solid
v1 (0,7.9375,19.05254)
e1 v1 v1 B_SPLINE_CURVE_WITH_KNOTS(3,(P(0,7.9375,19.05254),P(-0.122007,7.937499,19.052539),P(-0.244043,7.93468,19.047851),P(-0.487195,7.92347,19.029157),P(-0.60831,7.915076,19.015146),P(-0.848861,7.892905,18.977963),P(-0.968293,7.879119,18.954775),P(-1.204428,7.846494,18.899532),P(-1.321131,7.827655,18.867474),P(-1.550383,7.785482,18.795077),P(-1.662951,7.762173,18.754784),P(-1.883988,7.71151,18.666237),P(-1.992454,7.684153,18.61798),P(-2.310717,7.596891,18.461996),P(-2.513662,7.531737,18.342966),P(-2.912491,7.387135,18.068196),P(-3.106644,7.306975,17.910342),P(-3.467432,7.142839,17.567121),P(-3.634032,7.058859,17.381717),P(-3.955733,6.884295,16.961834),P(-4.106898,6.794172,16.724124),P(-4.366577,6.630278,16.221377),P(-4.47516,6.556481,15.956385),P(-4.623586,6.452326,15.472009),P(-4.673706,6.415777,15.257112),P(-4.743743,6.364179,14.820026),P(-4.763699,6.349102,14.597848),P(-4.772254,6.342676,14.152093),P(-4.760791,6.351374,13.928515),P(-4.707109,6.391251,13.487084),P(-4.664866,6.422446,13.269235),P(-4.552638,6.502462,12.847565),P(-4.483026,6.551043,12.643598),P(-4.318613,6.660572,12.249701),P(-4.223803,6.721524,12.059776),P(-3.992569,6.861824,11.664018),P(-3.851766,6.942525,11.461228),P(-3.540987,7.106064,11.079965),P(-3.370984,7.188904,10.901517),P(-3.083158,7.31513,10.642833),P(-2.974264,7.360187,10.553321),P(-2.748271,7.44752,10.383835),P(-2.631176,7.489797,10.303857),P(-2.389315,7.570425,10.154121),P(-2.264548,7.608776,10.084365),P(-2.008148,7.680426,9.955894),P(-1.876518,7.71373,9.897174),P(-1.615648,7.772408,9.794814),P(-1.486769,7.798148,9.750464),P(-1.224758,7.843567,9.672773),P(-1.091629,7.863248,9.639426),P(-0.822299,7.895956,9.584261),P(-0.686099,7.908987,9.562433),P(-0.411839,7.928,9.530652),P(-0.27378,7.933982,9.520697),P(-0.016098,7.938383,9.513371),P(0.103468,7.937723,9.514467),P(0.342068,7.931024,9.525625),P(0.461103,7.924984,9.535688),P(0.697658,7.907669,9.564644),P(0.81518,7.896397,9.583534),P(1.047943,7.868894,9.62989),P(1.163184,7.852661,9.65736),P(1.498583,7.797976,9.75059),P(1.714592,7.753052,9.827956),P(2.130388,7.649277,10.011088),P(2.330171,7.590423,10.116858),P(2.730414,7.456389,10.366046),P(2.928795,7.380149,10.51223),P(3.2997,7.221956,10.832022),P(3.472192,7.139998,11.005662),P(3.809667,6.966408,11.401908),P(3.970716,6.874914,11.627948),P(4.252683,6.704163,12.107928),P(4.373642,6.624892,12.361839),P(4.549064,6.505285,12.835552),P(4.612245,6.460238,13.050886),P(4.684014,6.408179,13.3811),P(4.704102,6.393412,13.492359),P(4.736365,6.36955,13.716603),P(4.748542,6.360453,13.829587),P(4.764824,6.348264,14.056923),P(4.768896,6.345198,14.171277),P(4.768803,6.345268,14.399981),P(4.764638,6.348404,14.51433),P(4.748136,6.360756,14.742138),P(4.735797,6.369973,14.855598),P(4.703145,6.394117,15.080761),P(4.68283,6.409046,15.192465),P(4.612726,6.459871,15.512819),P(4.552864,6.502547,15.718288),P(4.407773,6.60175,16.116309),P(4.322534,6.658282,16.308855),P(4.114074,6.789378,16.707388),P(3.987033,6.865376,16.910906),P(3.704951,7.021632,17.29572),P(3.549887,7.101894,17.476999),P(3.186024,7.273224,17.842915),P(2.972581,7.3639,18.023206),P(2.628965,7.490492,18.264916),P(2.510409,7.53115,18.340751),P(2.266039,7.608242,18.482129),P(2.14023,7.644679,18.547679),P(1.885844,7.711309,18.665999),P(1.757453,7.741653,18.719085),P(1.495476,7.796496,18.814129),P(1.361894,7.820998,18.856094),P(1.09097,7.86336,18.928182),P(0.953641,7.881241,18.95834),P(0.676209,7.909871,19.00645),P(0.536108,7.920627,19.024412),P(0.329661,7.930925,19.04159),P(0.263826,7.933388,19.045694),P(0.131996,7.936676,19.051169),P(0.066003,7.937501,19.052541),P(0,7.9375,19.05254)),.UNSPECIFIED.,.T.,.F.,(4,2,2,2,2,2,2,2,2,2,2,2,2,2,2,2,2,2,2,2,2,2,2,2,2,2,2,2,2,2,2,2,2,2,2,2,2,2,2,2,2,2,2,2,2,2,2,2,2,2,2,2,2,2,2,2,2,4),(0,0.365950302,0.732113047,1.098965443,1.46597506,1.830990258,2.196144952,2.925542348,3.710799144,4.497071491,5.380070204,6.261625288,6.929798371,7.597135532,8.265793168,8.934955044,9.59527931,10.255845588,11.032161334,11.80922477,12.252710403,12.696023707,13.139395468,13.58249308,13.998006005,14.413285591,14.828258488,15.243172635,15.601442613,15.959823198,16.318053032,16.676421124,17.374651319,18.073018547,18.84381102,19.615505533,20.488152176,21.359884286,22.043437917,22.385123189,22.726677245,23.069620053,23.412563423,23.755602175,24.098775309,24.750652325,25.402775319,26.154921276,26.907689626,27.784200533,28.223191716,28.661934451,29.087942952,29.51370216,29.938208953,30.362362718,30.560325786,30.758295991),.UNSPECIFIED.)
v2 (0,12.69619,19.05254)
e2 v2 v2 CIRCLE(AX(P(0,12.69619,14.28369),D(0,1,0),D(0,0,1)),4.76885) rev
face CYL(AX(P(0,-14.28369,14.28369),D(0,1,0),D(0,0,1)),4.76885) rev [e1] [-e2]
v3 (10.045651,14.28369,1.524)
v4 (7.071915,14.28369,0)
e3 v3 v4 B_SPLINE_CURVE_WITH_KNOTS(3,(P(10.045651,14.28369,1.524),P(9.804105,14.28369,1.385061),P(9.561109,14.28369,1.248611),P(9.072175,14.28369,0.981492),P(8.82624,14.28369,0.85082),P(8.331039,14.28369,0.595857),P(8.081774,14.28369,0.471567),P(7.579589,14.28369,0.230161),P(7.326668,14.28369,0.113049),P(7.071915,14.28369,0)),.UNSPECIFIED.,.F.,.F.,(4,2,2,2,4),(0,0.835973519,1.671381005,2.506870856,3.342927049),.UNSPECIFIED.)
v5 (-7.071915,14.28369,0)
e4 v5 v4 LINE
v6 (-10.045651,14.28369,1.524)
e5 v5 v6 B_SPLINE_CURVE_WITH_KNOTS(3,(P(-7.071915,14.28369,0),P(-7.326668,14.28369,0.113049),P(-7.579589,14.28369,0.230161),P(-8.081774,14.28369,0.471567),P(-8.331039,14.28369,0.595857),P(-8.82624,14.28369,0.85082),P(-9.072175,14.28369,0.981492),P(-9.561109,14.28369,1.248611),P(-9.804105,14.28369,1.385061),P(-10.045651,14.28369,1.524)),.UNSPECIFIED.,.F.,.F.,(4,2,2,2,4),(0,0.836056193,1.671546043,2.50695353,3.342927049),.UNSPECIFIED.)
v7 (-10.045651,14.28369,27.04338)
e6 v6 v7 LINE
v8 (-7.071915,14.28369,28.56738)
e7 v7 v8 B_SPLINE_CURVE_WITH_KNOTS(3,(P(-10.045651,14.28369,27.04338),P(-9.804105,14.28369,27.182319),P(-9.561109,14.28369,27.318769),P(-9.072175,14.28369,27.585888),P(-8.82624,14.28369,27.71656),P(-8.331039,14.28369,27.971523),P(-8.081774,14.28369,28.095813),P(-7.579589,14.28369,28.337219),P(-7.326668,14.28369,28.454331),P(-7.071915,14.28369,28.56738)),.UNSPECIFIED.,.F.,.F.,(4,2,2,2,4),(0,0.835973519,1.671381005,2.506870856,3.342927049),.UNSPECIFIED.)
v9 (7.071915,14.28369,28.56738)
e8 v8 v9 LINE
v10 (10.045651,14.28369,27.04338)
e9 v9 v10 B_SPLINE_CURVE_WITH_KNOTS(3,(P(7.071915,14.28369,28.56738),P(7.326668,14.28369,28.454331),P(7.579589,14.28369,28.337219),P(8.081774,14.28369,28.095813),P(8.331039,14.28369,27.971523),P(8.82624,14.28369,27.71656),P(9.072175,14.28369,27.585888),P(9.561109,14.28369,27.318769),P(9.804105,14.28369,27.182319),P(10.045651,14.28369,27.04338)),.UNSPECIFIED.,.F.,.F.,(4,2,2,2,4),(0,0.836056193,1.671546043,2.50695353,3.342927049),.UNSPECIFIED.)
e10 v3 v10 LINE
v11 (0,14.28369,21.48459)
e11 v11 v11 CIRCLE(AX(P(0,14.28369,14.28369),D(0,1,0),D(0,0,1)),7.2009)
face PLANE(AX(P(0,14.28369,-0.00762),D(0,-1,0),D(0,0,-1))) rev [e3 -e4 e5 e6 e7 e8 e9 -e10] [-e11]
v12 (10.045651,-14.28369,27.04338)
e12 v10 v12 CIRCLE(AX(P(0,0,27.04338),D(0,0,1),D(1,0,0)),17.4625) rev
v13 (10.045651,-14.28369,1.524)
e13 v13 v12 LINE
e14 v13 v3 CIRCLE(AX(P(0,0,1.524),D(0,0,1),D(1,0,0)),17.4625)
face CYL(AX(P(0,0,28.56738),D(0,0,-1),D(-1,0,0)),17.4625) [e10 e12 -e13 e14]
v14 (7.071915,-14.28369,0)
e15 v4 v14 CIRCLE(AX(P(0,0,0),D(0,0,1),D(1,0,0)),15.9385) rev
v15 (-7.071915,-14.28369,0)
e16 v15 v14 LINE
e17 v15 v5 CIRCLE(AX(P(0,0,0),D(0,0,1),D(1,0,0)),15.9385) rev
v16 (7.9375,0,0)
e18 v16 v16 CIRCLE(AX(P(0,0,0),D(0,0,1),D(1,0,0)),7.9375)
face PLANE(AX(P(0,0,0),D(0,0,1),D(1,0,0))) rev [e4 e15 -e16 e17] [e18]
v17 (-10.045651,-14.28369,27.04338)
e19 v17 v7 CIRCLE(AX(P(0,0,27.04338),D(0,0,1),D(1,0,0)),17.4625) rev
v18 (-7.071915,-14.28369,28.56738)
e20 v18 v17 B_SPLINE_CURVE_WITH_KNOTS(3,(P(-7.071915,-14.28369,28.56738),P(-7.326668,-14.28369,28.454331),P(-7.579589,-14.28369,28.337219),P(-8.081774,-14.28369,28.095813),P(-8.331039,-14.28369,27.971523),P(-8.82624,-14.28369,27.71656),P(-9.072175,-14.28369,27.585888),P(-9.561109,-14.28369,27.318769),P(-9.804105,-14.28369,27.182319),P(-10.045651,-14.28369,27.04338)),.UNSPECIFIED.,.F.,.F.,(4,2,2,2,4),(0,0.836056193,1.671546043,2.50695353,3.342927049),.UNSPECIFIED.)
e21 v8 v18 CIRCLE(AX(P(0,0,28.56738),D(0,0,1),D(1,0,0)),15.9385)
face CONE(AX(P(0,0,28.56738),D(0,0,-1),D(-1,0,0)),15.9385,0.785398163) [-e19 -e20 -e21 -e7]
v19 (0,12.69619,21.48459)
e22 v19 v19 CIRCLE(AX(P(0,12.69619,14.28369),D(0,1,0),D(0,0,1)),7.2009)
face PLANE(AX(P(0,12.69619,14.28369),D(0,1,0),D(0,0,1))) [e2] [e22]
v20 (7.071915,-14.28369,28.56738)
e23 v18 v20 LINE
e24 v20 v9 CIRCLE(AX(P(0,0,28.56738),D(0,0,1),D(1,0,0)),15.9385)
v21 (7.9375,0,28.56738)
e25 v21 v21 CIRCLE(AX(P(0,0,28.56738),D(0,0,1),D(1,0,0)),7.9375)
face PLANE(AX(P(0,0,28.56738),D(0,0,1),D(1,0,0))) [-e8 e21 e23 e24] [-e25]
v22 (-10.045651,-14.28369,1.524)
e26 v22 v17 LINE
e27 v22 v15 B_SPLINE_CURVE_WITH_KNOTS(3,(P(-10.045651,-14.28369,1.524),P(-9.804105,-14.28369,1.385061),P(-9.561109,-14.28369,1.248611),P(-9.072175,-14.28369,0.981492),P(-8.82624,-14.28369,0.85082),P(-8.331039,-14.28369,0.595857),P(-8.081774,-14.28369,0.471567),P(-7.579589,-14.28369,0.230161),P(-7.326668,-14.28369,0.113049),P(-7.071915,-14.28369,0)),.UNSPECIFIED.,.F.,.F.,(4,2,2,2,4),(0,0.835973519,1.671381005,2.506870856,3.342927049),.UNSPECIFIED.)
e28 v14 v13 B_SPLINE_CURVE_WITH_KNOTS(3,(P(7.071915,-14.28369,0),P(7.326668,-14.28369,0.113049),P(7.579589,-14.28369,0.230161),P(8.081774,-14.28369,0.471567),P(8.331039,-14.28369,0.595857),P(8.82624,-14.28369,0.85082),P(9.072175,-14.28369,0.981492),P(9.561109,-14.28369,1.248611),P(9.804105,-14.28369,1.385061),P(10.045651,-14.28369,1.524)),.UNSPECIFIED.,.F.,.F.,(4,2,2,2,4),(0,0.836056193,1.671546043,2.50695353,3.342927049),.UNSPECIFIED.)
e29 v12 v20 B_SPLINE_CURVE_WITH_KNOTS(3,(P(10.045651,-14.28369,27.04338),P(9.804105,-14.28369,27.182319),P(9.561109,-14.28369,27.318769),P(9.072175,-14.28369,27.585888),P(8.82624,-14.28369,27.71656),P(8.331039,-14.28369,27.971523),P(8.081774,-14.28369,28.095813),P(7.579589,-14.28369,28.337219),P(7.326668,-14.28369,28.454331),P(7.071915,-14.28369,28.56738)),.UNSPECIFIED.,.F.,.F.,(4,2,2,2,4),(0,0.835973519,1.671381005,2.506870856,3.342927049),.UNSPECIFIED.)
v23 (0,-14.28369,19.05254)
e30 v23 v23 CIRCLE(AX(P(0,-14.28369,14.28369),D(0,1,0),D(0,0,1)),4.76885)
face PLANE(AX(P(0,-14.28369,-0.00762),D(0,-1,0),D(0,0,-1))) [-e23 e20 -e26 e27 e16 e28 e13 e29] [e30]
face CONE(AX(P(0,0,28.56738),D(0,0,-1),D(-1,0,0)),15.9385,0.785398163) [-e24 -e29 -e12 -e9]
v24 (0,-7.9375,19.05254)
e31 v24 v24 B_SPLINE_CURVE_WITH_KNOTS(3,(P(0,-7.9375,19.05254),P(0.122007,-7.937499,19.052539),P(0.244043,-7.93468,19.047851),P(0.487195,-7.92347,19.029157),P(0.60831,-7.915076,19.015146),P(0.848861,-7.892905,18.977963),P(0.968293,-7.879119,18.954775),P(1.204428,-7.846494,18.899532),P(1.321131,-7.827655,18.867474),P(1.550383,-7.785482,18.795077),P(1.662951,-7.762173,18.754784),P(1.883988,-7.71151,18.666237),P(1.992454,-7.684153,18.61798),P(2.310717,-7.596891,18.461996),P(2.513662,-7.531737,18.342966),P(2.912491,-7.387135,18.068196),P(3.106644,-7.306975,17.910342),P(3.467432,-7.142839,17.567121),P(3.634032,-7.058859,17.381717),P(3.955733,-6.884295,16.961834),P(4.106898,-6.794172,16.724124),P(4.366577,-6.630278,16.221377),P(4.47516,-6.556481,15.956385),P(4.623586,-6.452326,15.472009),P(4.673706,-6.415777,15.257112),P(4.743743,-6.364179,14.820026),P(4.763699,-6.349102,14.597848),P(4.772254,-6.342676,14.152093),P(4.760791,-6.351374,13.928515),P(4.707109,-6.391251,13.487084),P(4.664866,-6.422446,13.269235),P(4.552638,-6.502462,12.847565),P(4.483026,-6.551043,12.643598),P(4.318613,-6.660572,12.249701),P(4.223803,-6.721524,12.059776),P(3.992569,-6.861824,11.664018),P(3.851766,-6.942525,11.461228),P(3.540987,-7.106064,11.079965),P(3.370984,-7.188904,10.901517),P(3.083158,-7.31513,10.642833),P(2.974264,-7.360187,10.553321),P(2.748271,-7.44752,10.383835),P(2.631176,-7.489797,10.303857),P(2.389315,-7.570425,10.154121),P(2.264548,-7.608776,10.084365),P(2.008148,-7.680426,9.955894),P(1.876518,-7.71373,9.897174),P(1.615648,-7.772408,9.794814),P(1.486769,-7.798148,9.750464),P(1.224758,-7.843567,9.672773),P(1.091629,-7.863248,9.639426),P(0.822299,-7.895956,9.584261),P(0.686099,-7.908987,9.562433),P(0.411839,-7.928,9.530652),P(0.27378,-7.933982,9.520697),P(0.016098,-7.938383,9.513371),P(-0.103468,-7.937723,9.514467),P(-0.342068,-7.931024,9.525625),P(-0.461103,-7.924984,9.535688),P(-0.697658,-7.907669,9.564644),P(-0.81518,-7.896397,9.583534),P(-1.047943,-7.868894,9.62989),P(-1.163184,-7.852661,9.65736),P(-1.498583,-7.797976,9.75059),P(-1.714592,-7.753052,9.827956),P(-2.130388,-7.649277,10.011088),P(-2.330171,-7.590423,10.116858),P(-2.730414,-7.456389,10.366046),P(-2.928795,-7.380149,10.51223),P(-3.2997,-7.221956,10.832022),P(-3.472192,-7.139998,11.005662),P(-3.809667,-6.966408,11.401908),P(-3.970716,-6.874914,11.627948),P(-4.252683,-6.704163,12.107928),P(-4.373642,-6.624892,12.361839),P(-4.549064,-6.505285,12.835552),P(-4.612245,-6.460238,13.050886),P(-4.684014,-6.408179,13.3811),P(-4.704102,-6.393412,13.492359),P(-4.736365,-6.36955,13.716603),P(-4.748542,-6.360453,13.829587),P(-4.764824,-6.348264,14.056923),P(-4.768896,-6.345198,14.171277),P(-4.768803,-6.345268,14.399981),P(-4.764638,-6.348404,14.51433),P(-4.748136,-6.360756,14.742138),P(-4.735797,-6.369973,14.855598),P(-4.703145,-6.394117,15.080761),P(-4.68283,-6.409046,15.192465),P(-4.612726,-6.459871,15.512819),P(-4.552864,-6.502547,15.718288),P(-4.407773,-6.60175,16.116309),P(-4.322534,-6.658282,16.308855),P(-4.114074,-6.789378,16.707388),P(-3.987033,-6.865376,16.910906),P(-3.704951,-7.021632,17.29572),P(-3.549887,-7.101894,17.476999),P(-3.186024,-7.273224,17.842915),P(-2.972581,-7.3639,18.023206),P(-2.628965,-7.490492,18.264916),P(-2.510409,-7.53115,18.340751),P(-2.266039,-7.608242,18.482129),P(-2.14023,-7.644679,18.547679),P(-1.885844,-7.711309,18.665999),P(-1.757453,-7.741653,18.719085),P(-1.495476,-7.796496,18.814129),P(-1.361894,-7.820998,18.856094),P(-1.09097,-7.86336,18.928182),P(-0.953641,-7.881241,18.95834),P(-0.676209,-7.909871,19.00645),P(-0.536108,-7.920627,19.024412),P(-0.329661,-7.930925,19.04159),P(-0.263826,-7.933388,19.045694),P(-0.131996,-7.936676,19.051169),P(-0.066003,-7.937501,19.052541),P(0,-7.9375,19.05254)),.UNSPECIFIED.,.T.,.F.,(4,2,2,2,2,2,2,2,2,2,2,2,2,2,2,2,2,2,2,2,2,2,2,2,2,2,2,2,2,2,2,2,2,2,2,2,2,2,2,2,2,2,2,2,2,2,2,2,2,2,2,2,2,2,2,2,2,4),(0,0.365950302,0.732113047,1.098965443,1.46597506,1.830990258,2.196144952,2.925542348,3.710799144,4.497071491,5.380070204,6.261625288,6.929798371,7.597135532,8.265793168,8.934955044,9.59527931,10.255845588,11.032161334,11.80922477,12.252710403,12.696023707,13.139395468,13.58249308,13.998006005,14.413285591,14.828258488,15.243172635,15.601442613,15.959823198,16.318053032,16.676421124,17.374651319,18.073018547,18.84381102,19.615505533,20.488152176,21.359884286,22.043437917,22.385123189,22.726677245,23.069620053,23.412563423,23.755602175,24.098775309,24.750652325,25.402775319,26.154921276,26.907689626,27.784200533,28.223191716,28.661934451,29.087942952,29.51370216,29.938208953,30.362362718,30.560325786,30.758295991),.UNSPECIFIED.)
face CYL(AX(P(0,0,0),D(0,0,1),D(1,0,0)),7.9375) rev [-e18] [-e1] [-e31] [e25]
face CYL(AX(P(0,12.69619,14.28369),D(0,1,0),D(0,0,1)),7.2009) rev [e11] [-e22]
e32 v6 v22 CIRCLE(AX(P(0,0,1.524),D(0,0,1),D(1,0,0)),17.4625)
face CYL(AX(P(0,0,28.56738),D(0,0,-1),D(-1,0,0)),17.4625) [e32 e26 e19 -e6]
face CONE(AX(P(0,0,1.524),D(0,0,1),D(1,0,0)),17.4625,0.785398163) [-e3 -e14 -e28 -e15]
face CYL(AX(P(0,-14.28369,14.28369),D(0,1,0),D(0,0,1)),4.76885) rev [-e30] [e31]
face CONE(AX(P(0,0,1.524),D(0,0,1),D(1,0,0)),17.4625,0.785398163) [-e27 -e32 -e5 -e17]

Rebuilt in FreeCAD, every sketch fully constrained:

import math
import FreeCAD as App
import Part
import Sketcher

V = App.Vector
Q = App.Units.Quantity


def edges_at(feature, points):
    """Names of the edges that pass closest to the given points."""
    edges = feature.Shape.Edges
    near = lambda p: min(range(len(edges)), key=lambda i: edges[i].distToShape(Part.Vertex(*p))[0])
    return sorted({f"Edge{near(p) + 1}" for p in points})

doc = App.newDocument("Part")
body = doc.addObject("PartDesign::Body", "Body")

sketch1 = doc.addObject("Sketcher::SketchObject", "Sketch")
body.addObject(sketch1)
sketch1.AttachmentSupport = (doc.XY_Plane, [""])
sketch1.MapMode = "FlatFace"
sketch1.addGeometry(Part.Circle(V(0, 0, 0), V(0, 0, 1), 17), False)
sketch1.addConstraint([
    Sketcher.Constraint("Coincident", 0, 3, -1, 1),
    Sketcher.Constraint("Diameter", 0, Q("1.375 in")),
])
pad1 = doc.addObject("PartDesign::Pad", "Pad")
body.addObject(pad1)
pad1.Profile = sketch1
pad1.Length = Q("1.1247 in")

sketch2 = doc.addObject("Sketcher::SketchObject", "Sketch001")
body.addObject(sketch2)
sketch2.AttachmentSupport = (doc.XY_Plane, [""])
sketch2.MapMode = "FlatFace"
sketch2.AttachmentOffset = App.Placement(V(0, 0, -0.0003 * 25.4), App.Rotation())
sketch2.addGeometry([
    Part.ArcOfCircle(Part.Circle(V(0, 0, 0), V(0, 0, 1), 17), math.radians(55), math.radians(125)),
    Part.LineSegment(V(-10, 14, 0), V(10, 14, 0)),
    Part.LineSegment(V(10, -14, 0), V(-10, -14, 0)),
    Part.ArcOfCircle(Part.Circle(V(0, 0, 0), V(0, 0, 1), 17), math.radians(-125), math.radians(-55)),
], False)
sketch2.addConstraint([
    Sketcher.Constraint("Coincident", 0, 1, 1, 2),
    Sketcher.Constraint("Coincident", 1, 1, 0, 2),
    Sketcher.Constraint("Coincident", 2, 1, 3, 2),
    Sketcher.Constraint("Coincident", 3, 1, 2, 2),
    Sketcher.Constraint("Horizontal", 1),
    Sketcher.Constraint("Horizontal", 2),
    Sketcher.Constraint("Coincident", 0, 3, -1, 1),
    Sketcher.Constraint("Coincident", 3, 3, -1, 1),
    Sketcher.Constraint("Equal", 0, 3),
    Sketcher.Constraint("Vertical", 0, 1, 2, 1),
    Sketcher.Constraint("Radius", 0, Q("0.6875 in")),
    Sketcher.Constraint("DistanceY", 2, 1, 0, 1, Q("1.1247 in")),
])
pocket1 = doc.addObject("PartDesign::Pocket", "Pocket")
body.addObject(pocket1)
pocket1.Profile = sketch2
pocket1.Length = Q("1.125 in")
pocket1.Reversed = True

sketch3 = doc.addObject("Sketcher::SketchObject", "Sketch002")
body.addObject(sketch3)
sketch3.AttachmentSupport = (doc.XZ_Plane, [""])
sketch3.MapMode = "FlatFace"
sketch3.AttachmentOffset = App.Placement(V(0, 0, -14.28369), App.Rotation())
sketch3.addGeometry(Part.Circle(V(0, 14.3, 0), V(0, 0, 1), 4.8), False)
sketch3.addConstraint([
    Sketcher.Constraint("PointOnObject", 0, 3, -2),
    Sketcher.Constraint("Diameter", 0, Q("0.3755 in")),
    Sketcher.Constraint("DistanceY", -1, 1, 0, 3, 14.28369),
])
pocket2 = doc.addObject("PartDesign::Pocket", "Pocket001")
body.addObject(pocket2)
pocket2.Profile = sketch3
pocket2.Type = "ThroughAll"
pocket2.Reversed = True

sketch4 = doc.addObject("Sketcher::SketchObject", "Sketch003")
body.addObject(sketch4)
sketch4.AttachmentSupport = (doc.XZ_Plane, [""])
sketch4.MapMode = "FlatFace"
sketch4.AttachmentOffset = App.Placement(V(0, 0, -14.28369), App.Rotation())
sketch4.addGeometry(Part.Circle(V(0, 14, 0), V(0, 0, 1), 7), False)
sketch4.addConstraint([
    Sketcher.Constraint("PointOnObject", 0, 3, -2),
    Sketcher.Constraint("Diameter", 0, Q("0.567 in")),
    Sketcher.Constraint("DistanceY", -1, 1, 0, 3, 14.28369),
])
pocket3 = doc.addObject("PartDesign::Pocket", "Pocket002")
body.addObject(pocket3)
pocket3.Profile = sketch4
pocket3.Length = Q("0.0625 in")
pocket3.Reversed = True

sketch5 = doc.addObject("Sketcher::SketchObject", "Sketch004")
body.addObject(sketch5)
sketch5.AttachmentSupport = (doc.XY_Plane, [""])
sketch5.MapMode = "FlatFace"
sketch5.AttachmentOffset = App.Placement(V(0, 0, 1.1247 * 25.4), App.Rotation())
sketch5.addGeometry(Part.Circle(V(0, 0, 0), V(0, 0, 1), 8), False)
sketch5.addConstraint([
    Sketcher.Constraint("Coincident", 0, 3, -1, 1),
    Sketcher.Constraint("Diameter", 0, Q("0.625 in")),
])
pocket4 = doc.addObject("PartDesign::Pocket", "Pocket003")
body.addObject(pocket4)
pocket4.Profile = sketch5
pocket4.Type = "ThroughAll"
doc.recompute()

chamfer = doc.addObject("PartDesign::Chamfer", "Chamfer")
body.addObject(chamfer)
chamfer.Base = (pocket4, edges_at(pocket4, [
    (17.462, 0, 0),
    (17.462, 0, 28.567),
    (-17.462, 0, 0),
    (-17.462, 0, 28.567),
]))
chamfer.Size = Q("0.06 in")

doc.recompute()
